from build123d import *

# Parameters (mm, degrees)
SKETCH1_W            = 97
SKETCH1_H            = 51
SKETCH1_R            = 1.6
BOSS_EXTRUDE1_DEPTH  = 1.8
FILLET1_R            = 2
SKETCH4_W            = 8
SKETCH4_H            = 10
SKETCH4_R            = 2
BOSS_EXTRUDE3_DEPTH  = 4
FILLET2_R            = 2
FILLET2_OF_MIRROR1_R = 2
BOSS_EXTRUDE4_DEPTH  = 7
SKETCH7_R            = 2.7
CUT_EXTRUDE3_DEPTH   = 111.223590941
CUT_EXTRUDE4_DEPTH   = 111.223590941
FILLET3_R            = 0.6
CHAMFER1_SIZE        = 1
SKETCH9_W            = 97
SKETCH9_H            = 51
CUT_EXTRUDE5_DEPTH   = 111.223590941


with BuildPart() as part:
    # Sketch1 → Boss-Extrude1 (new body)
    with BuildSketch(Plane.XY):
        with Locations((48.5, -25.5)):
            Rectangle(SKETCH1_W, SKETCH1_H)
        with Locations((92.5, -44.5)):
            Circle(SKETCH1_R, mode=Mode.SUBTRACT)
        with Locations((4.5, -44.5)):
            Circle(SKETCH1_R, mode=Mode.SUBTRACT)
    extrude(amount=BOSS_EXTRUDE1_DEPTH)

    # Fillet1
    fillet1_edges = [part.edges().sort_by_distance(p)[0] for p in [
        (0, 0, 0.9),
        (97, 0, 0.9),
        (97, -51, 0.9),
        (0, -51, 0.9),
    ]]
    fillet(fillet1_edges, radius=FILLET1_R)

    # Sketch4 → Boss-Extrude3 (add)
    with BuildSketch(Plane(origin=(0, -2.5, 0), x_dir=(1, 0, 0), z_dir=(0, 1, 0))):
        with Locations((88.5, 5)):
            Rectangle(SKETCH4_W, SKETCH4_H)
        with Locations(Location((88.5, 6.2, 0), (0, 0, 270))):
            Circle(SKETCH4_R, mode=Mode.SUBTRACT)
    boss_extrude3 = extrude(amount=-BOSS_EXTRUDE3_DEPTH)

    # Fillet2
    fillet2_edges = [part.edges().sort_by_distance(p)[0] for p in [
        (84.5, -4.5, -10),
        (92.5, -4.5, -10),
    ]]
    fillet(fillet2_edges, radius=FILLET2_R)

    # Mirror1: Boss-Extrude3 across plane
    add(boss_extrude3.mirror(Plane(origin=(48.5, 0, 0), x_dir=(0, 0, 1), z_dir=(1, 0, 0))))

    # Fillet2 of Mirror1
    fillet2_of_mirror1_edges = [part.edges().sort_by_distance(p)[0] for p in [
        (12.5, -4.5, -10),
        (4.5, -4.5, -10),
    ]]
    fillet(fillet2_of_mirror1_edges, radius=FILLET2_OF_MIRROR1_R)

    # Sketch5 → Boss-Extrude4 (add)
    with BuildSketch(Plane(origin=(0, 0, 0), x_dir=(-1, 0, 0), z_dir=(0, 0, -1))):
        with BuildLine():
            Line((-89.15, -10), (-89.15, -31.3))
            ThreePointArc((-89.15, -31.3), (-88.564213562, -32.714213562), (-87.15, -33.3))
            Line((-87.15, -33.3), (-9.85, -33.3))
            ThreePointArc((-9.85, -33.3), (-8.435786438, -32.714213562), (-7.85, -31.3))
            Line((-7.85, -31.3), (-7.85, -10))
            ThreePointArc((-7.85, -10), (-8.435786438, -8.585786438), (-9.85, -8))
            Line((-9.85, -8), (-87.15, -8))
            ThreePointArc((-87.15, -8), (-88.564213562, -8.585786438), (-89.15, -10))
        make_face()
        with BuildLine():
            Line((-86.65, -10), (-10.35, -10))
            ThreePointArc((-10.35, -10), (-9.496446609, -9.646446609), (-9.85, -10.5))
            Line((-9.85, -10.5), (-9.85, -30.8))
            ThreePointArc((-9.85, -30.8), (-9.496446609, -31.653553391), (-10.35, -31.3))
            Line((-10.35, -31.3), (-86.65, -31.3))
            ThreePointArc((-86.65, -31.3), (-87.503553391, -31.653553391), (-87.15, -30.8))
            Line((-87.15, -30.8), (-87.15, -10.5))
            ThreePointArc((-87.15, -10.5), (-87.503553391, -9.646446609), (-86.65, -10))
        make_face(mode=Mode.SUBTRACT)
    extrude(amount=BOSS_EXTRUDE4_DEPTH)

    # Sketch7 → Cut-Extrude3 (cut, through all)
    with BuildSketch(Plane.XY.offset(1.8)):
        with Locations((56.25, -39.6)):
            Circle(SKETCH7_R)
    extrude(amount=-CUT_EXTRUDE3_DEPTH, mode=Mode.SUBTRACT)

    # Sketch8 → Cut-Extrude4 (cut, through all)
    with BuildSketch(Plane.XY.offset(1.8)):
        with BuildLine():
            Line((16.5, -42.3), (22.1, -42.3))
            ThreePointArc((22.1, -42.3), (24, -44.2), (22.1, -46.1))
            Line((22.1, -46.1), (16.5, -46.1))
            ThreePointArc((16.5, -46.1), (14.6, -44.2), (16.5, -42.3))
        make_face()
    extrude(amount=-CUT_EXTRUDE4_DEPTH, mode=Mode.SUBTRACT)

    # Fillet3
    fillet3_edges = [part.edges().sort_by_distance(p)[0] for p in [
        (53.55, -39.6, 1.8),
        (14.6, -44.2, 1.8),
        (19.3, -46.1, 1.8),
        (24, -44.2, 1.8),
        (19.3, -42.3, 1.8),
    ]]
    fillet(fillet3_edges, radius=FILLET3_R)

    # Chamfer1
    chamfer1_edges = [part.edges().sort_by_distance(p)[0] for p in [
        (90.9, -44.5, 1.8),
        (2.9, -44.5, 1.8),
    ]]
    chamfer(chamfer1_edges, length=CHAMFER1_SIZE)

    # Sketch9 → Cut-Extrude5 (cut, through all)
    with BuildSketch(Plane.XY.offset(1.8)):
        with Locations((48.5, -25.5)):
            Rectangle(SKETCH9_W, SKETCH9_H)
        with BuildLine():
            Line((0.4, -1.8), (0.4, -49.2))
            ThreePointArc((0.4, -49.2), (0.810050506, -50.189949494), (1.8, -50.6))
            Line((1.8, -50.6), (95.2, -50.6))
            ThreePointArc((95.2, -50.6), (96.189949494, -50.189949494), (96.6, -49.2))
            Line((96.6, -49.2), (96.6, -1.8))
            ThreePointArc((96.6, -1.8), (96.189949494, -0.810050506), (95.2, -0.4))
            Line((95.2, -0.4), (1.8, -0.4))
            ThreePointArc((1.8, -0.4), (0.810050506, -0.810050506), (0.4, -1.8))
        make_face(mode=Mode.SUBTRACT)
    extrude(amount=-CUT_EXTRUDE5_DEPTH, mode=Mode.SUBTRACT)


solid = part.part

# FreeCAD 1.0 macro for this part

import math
import FreeCAD as App
import Part
import Sketcher

V = App.Vector


def edges_at(feature, points):
    """Names of the edges that pass closest to the given points."""
    edges = feature.Shape.Edges
    near = lambda p: min(range(len(edges)), key=lambda i: edges[i].distToShape(Part.Vertex(*p))[0])
    return sorted({f"Edge{near(p) + 1}" for p in points})


def add_polygon(sketch, points):
    """Adds a closed chain of lines whose ends are joined by coincident constraints."""
    first, n = sketch.GeometryCount, len(points)
    for a, b in zip(points, points[1:] + points[:1]):
        sketch.addGeometry(Part.LineSegment(App.Vector(*a, 0), App.Vector(*b, 0)), False)
    for i in range(n):
        sketch.addConstraint(Sketcher.Constraint("Coincident", first + i, 2, first + (i + 1) % n, 1))

doc = App.newDocument("Part")
params = doc.addObject("Spreadsheet::Sheet", "Params")
for row, (alias, value) in enumerate([
    ("sketch1_diameter", "3.2 mm"),
    ("sketch1_width", "97 mm"),
    ("sketch1_height", "51 mm"),
    ("pad1_length", "1.8 mm"),
    ("fillet_radius", "2 mm"),
    ("sketch2_diameter", "4 mm"),
    ("sketch2_width", "8 mm"),
    ("sketch2_height", "10 mm"),
    ("pad2_length", "4 mm"),
    ("fillet2_radius", "2 mm"),
    ("fillet3_radius", "2 mm"),
    ("sketch3_radius", "2 mm"),
    ("sketch3_radius2", "0.5 mm"),
    ("sketch3_width", "77.3 mm"),
    ("sketch3_height", "21.3 mm"),
    ("pad3_length", "7 mm"),
    ("sketch4_diameter", "5.4 mm"),
    ("sketch5_radius", "1.9 mm"),
    ("sketch5_width", "5.6 mm"),
    ("fillet4_radius", "0.6 mm"),
    ("chamfer_size", "1 mm"),
    ("sketch6_radius", "1.4 mm"),
    ("sketch6_width", "97 mm"),
    ("sketch6_height", "51 mm"),
    ("sketch6_width2", "93.4 mm"),
    ("sketch6_height2", "47.4 mm"),
], start=1):
    params.set(f"A{row}", alias)
    params.set(f"B{row}", "=" + value)
    params.setAlias(f"B{row}", alias)

body = doc.addObject("PartDesign::Body", "Body")

sketch1 = body.newObject("Sketcher::SketchObject", "Sketch")
sketch1.AttachmentSupport = (doc.getObject("XY_Plane"), [""])
sketch1.MapMode = "FlatFace"
add_polygon(sketch1, [(0, 0), (0, -51), (97, -51), (97, 0)])
sketch1.addGeometry(Part.Circle(V(4.5, -44.5, 0), V(0, 0, 1), 1.6), False)
sketch1.addGeometry(Part.Circle(V(92.5, -44.5, 0), V(0, 0, 1), 1.6), False)
sketch1.addConstraint(Sketcher.Constraint("Vertical", 0))
sketch1.addConstraint(Sketcher.Constraint("Horizontal", 1))
sketch1.addConstraint(Sketcher.Constraint("Vertical", 2))
sketch1.addConstraint(Sketcher.Constraint("Horizontal", 3))
sketch1.addConstraint(Sketcher.Constraint("Coincident", 3, 2, -1, 1))
sketch1.addConstraint(Sketcher.Constraint("Equal", 4, 5))
sketch1.addConstraint(Sketcher.Constraint("Horizontal", 4, 3, 5, 3))
sketch1.addConstraint(Sketcher.Constraint("Diameter", 4, 3.2))
sketch1.addConstraint(Sketcher.Constraint("DistanceX", 1, 1, 1, 2, 97.0))
sketch1.addConstraint(Sketcher.Constraint("DistanceY", 0, 2, 0, 1, 51.0))
sketch1.addConstraint(Sketcher.Constraint("DistanceX", 4, 3, 5, 3, 88.0))
sketch1.addConstraint(Sketcher.Constraint("DistanceX", -1, 1, 4, 3, 4.5))
sketch1.addConstraint(Sketcher.Constraint("DistanceY", 4, 3, -1, 1, 44.5))
sketch1.setExpression("Constraints[11]", "Params.sketch1_diameter")
sketch1.setExpression("Constraints[12]", "Params.sketch1_width")
sketch1.setExpression("Constraints[13]", "Params.sketch1_height")
pad1 = body.newObject("PartDesign::Pad", "Pad")
pad1.Profile = sketch1
pad1.setExpression("Length", "Params.pad1_length")
doc.recompute()

fillet = body.newObject("PartDesign::Fillet", "Fillet")
fillet.Base = (pad1, edges_at(pad1, [
    (0, 0, 0.9),
    (97, 0, 0.9),
    (97, -51, 0.9),
    (0, -51, 0.9),
]))
fillet.setExpression("Radius", "Params.fillet_radius")

sketch2 = body.newObject("Sketcher::SketchObject", "Sketch001")
sketch2.AttachmentSupport = (doc.getObject("XZ_Plane"), [""])
sketch2.MapMode = "FlatFace"
sketch2.AttachmentOffset = App.Placement(V(0, 0, 2.5), App.Rotation())
add_polygon(sketch2, [(84.5, -10), (84.5, 0), (92.5, 0), (92.5, -10)])
sketch2.addGeometry(Part.Circle(V(88.5, -6.2, 0), V(0, 0, 1), 2), False)
sketch2.addConstraint(Sketcher.Constraint("Vertical", 0))
sketch2.addConstraint(Sketcher.Constraint("Horizontal", 1))
sketch2.addConstraint(Sketcher.Constraint("Vertical", 2))
sketch2.addConstraint(Sketcher.Constraint("Horizontal", 3))
sketch2.addConstraint(Sketcher.Constraint("PointOnObject", 0, 2, -1))
sketch2.addConstraint(Sketcher.Constraint("Diameter", 4, 4.0))
sketch2.addConstraint(Sketcher.Constraint("DistanceX", 1, 1, 1, 2, 8.0))
sketch2.addConstraint(Sketcher.Constraint("DistanceY", 0, 1, 0, 2, 10.0))
sketch2.addConstraint(Sketcher.Constraint("DistanceX", 0, 2, 4, 3, 4.0))
sketch2.addConstraint(Sketcher.Constraint("DistanceX", -1, 1, 4, 3, 88.5))
sketch2.addConstraint(Sketcher.Constraint("DistanceY", 4, 3, -1, 1, 6.2))
sketch2.setExpression("Constraints[9]", "Params.sketch2_diameter")
sketch2.setExpression("Constraints[10]", "Params.sketch2_width")
sketch2.setExpression("Constraints[11]", "Params.sketch2_height")
pad2 = body.newObject("PartDesign::Pad", "Pad001")
pad2.Profile = sketch2
pad2.setExpression("Length", "Params.pad2_length")
doc.recompute()

fillet2 = body.newObject("PartDesign::Fillet", "Fillet001")
fillet2.Base = (pad2, edges_at(pad2, [(84.5, -4.5, -10), (92.5, -4.5, -10)]))
fillet2.setExpression("Radius", "Params.fillet2_radius")
doc.recompute()

datumplane = body.newObject("PartDesign::Plane", "DatumPlane")
datumplane.AttachmentSupport = (doc.getObject("YZ_Plane"), [""])
datumplane.MapMode = "FlatFace"
datumplane.AttachmentOffset = App.Placement(V(0, 0, 48.5), App.Rotation())
mirrored = body.newObject("PartDesign::Mirrored", "Mirrored")
mirrored.Originals = [pad2]
mirrored.MirrorPlane = (datumplane, [""])
body.Tip = mirrored
doc.recompute()

fillet3 = body.newObject("PartDesign::Fillet", "Fillet002")
fillet3.Base = (mirrored, edges_at(mirrored, [(12.5, -4.5, -10), (4.5, -4.5, -10)]))
fillet3.setExpression("Radius", "Params.fillet3_radius")

sketch3 = body.newObject("Sketcher::SketchObject", "Sketch002")
sketch3.AttachmentSupport = (doc.getObject("XY_Plane"), [""])
sketch3.MapMode = "FlatFace"
sketch3.addGeometry(Part.LineSegment(V(89.15, -10, 0), V(89.15, -31.3, 0)), False)
sketch3.addGeometry(Part.ArcOfCircle(Part.Circle(V(87.15, -31.3, 0), V(0, 0, 1), 2), math.radians(-90), math.radians(0)), False)
sketch3.addGeometry(Part.LineSegment(V(87.15, -33.3, 0), V(9.85, -33.3, 0)), False)
sketch3.addGeometry(Part.ArcOfCircle(Part.Circle(V(9.85, -31.3, 0), V(0, 0, 1), 2), math.radians(-180), math.radians(-90)), False)
sketch3.addGeometry(Part.LineSegment(V(7.85, -31.3, 0), V(7.85, -10, 0)), False)
sketch3.addGeometry(Part.ArcOfCircle(Part.Circle(V(9.85, -10, 0), V(0, 0, 1), 2), math.radians(90), math.radians(180)), False)
sketch3.addGeometry(Part.LineSegment(V(9.85, -8, 0), V(87.15, -8, 0)), False)
sketch3.addGeometry(Part.ArcOfCircle(Part.Circle(V(87.15, -10, 0), V(0, 0, 1), 2), math.radians(0), math.radians(90)), False)
sketch3.addGeometry(Part.ArcOfCircle(Part.Circle(V(87.15, -10, 0), V(0, 0, 1), 0.5), math.radians(-90), math.radians(180)), False)
sketch3.addGeometry(Part.LineSegment(V(86.65, -10, 0), V(10.35, -10, 0)), False)
sketch3.addGeometry(Part.ArcOfCircle(Part.Circle(V(9.85, -10, 0), V(0, 0, 1), 0.5), math.radians(0), math.radians(270)), False)
sketch3.addGeometry(Part.LineSegment(V(9.85, -10.5, 0), V(9.85, -30.8, 0)), False)
sketch3.addGeometry(Part.ArcOfCircle(Part.Circle(V(9.85, -31.3, 0), V(0, 0, 1), 0.5), math.radians(90), math.radians(360)), False)
sketch3.addGeometry(Part.LineSegment(V(10.35, -31.3, 0), V(86.65, -31.3, 0)), False)
sketch3.addGeometry(Part.ArcOfCircle(Part.Circle(V(87.15, -31.3, 0), V(0, 0, 1), 0.5), math.radians(180), math.radians(450)), False)
sketch3.addGeometry(Part.LineSegment(V(87.15, -30.8, 0), V(87.15, -10.5, 0)), False)
sketch3.addConstraint(Sketcher.Constraint("Tangent", 0, 2, 1, 2))
sketch3.addConstraint(Sketcher.Constraint("Tangent", 1, 1, 2, 1))
sketch3.addConstraint(Sketcher.Constraint("Tangent", 2, 2, 3, 2))
sketch3.addConstraint(Sketcher.Constraint("Tangent", 3, 1, 4, 1))
sketch3.addConstraint(Sketcher.Constraint("Tangent", 4, 2, 5, 2))
sketch3.addConstraint(Sketcher.Constraint("Tangent", 5, 1, 6, 1))
sketch3.addConstraint(Sketcher.Constraint("Tangent", 6, 2, 7, 2))
sketch3.addConstraint(Sketcher.Constraint("Tangent", 7, 1, 0, 1))
sketch3.addConstraint(Sketcher.Constraint("Coincident", 8, 2, 9, 1))
sketch3.addConstraint(Sketcher.Constraint("Coincident", 9, 2, 10, 1))
sketch3.addConstraint(Sketcher.Constraint("Coincident", 10, 2, 11, 1))
sketch3.addConstraint(Sketcher.Constraint("Coincident", 11, 2, 12, 1))
sketch3.addConstraint(Sketcher.Constraint("Coincident", 12, 2, 13, 1))
sketch3.addConstraint(Sketcher.Constraint("Coincident", 13, 2, 14, 1))
sketch3.addConstraint(Sketcher.Constraint("Coincident", 14, 2, 15, 1))
sketch3.addConstraint(Sketcher.Constraint("Coincident", 15, 2, 8, 1))
sketch3.addConstraint(Sketcher.Constraint("Vertical", 0))
sketch3.addConstraint(Sketcher.Constraint("Horizontal", 2))
sketch3.addConstraint(Sketcher.Constraint("Vertical", 4))
sketch3.addConstraint(Sketcher.Constraint("Horizontal", 6))
sketch3.addConstraint(Sketcher.Constraint("Horizontal", 9))
sketch3.addConstraint(Sketcher.Constraint("Vertical", 11))
sketch3.addConstraint(Sketcher.Constraint("Horizontal", 13))
sketch3.addConstraint(Sketcher.Constraint("Vertical", 15))
sketch3.addConstraint(Sketcher.Constraint("Coincident", 8, 3, 7, 3))
sketch3.addConstraint(Sketcher.Constraint("Coincident", 10, 3, 5, 3))
sketch3.addConstraint(Sketcher.Constraint("Coincident", 12, 3, 3, 3))
sketch3.addConstraint(Sketcher.Constraint("Coincident", 14, 3, 1, 3))
sketch3.addConstraint(Sketcher.Constraint("Equal", 1, 3))
sketch3.addConstraint(Sketcher.Constraint("Equal", 3, 5))
sketch3.addConstraint(Sketcher.Constraint("Equal", 5, 7))
sketch3.addConstraint(Sketcher.Constraint("Equal", 8, 10))
sketch3.addConstraint(Sketcher.Constraint("Equal", 10, 12))
sketch3.addConstraint(Sketcher.Constraint("Equal", 12, 14))
sketch3.addConstraint(Sketcher.Constraint("Horizontal", 7, 1, 8, 2))
sketch3.addConstraint(Sketcher.Constraint("Horizontal", 3, 1, 12, 2))
sketch3.addConstraint(Sketcher.Constraint("Vertical", 5, 1, 10, 2))
sketch3.addConstraint(Sketcher.Constraint("Vertical", 6, 2, 14, 2))
sketch3.addConstraint(Sketcher.Constraint("Radius", 1, 2.0))
sketch3.addConstraint(Sketcher.Constraint("Radius", 8, 0.5))
sketch3.addConstraint(Sketcher.Constraint("DistanceX", 2, 2, 2, 1, 77.3))
sketch3.addConstraint(Sketcher.Constraint("DistanceY", 0, 2, 0, 1, 21.3))
sketch3.addConstraint(Sketcher.Constraint("DistanceY", 5, 3, -1, 1, 10.0))
sketch3.addConstraint(Sketcher.Constraint("DistanceX", -1, 1, 1, 3, 87.15))
sketch3.setExpression("Constraints[38]", "Params.sketch3_radius")
sketch3.setExpression("Constraints[39]", "Params.sketch3_radius2")
sketch3.setExpression("Constraints[40]", "Params.sketch3_width")
sketch3.setExpression("Constraints[41]", "Params.sketch3_height")
pad3 = body.newObject("PartDesign::Pad", "Pad002")
pad3.Profile = sketch3
pad3.setExpression("Length", "Params.pad3_length")
pad3.Reversed = True

sketch4 = body.newObject("Sketcher::SketchObject", "Sketch003")
sketch4.AttachmentSupport = (doc.getObject("XY_Plane"), [""])
sketch4.MapMode = "FlatFace"
sketch4.AttachmentOffset = App.Placement(V(0, 0, 1.8), App.Rotation())
sketch4.addGeometry(Part.Circle(V(56.25, -39.6, 0), V(0, 0, 1), 2.7), False)
sketch4.addConstraint(Sketcher.Constraint("Diameter", 0, 5.4))
sketch4.addConstraint(Sketcher.Constraint("DistanceY", 0, 3, -1, 1, 39.6))
sketch4.addConstraint(Sketcher.Constraint("DistanceX", -1, 1, 0, 3, 56.25))
sketch4.setExpression("Constraints[0]", "Params.sketch4_diameter")
pocket1 = body.newObject("PartDesign::Pocket", "Pocket")
pocket1.Profile = sketch4
pocket1.Type = "ThroughAll"

sketch5 = body.newObject("Sketcher::SketchObject", "Sketch004")
sketch5.AttachmentSupport = (doc.getObject("XY_Plane"), [""])
sketch5.MapMode = "FlatFace"
sketch5.AttachmentOffset = App.Placement(V(0, 0, 1.8), App.Rotation())
sketch5.addGeometry(Part.LineSegment(V(22.1, -42.3, 0), V(16.5, -42.3, 0)), False)
sketch5.addGeometry(Part.ArcOfCircle(Part.Circle(V(16.5, -44.2, 0), V(0, 0, 1), 1.9), math.radians(90), math.radians(270)), False)
sketch5.addGeometry(Part.LineSegment(V(16.5, -46.1, 0), V(22.1, -46.1, 0)), False)
sketch5.addGeometry(Part.ArcOfCircle(Part.Circle(V(22.1, -44.2, 0), V(0, 0, 1), 1.9), math.radians(-90), math.radians(90)), False)
sketch5.addConstraint(Sketcher.Constraint("Tangent", 0, 2, 1, 1))
sketch5.addConstraint(Sketcher.Constraint("Tangent", 1, 2, 2, 1))
sketch5.addConstraint(Sketcher.Constraint("Tangent", 2, 2, 3, 1))
sketch5.addConstraint(Sketcher.Constraint("Tangent", 3, 2, 0, 1))
sketch5.addConstraint(Sketcher.Constraint("Horizontal", 0))
sketch5.addConstraint(Sketcher.Constraint("Horizontal", 2))
sketch5.addConstraint(Sketcher.Constraint("Radius", 1, 1.9))
sketch5.addConstraint(Sketcher.Constraint("DistanceX", 0, 2, 0, 1, 5.6))
sketch5.addConstraint(Sketcher.Constraint("DistanceX", -1, 1, 1, 3, 16.5))
sketch5.addConstraint(Sketcher.Constraint("DistanceY", 1, 3, -1, 1, 44.2))
sketch5.setExpression("Constraints[6]", "Params.sketch5_radius")
sketch5.setExpression("Constraints[7]", "Params.sketch5_width")
pocket2 = body.newObject("PartDesign::Pocket", "Pocket001")
pocket2.Profile = sketch5
pocket2.Type = "ThroughAll"
doc.recompute()

fillet4 = body.newObject("PartDesign::Fillet", "Fillet003")
fillet4.Base = (pocket2, edges_at(pocket2, [
    (53.55, -39.6, 1.8),
    (14.6, -44.2, 1.8),
    (19.3, -46.1, 1.8),
    (24, -44.2, 1.8),
    (19.3, -42.3, 1.8),
]))
fillet4.setExpression("Radius", "Params.fillet4_radius")
doc.recompute()

chamfer = body.newObject("PartDesign::Chamfer", "Chamfer")
chamfer.Base = (fillet4, edges_at(fillet4, [(90.9, -44.5, 1.8), (2.9, -44.5, 1.8)]))
chamfer.setExpression("Size", "Params.chamfer_size")

sketch6 = body.newObject("Sketcher::SketchObject", "Sketch005")
sketch6.AttachmentSupport = (doc.getObject("XY_Plane"), [""])
sketch6.MapMode = "FlatFace"
sketch6.AttachmentOffset = App.Placement(V(0, 0, 1.8), App.Rotation())
add_polygon(sketch6, [(0, 0), (0, -51), (97, -51), (97, 0)])
sketch6.addGeometry(Part.LineSegment(V(0.4, -49.2, 0), V(0.4, -1.8, 0)), False)
sketch6.addGeometry(Part.ArcOfCircle(Part.Circle(V(1.8, -1.8, 0), V(0, 0, 1), 1.4), math.radians(90), math.radians(180)), False)
sketch6.addGeometry(Part.LineSegment(V(1.8, -0.4, 0), V(95.2, -0.4, 0)), False)
sketch6.addGeometry(Part.ArcOfCircle(Part.Circle(V(95.2, -1.8, 0), V(0, 0, 1), 1.4), math.radians(0), math.radians(90)), False)
sketch6.addGeometry(Part.LineSegment(V(96.6, -1.8, 0), V(96.6, -49.2, 0)), False)
sketch6.addGeometry(Part.ArcOfCircle(Part.Circle(V(95.2, -49.2, 0), V(0, 0, 1), 1.4), math.radians(-90), math.radians(0)), False)
sketch6.addGeometry(Part.LineSegment(V(95.2, -50.6, 0), V(1.8, -50.6, 0)), False)
sketch6.addGeometry(Part.ArcOfCircle(Part.Circle(V(1.8, -49.2, 0), V(0, 0, 1), 1.4), math.radians(180), math.radians(270)), False)
sketch6.addConstraint(Sketcher.Constraint("Tangent", 4, 2, 5, 2))
sketch6.addConstraint(Sketcher.Constraint("Tangent", 5, 1, 6, 1))
sketch6.addConstraint(Sketcher.Constraint("Tangent", 6, 2, 7, 2))
sketch6.addConstraint(Sketcher.Constraint("Tangent", 7, 1, 8, 1))
sketch6.addConstraint(Sketcher.Constraint("Tangent", 8, 2, 9, 2))
sketch6.addConstraint(Sketcher.Constraint("Tangent", 9, 1, 10, 1))
sketch6.addConstraint(Sketcher.Constraint("Tangent", 10, 2, 11, 2))
sketch6.addConstraint(Sketcher.Constraint("Tangent", 11, 1, 4, 1))
sketch6.addConstraint(Sketcher.Constraint("Vertical", 0))
sketch6.addConstraint(Sketcher.Constraint("Horizontal", 1))
sketch6.addConstraint(Sketcher.Constraint("Vertical", 2))
sketch6.addConstraint(Sketcher.Constraint("Horizontal", 3))
sketch6.addConstraint(Sketcher.Constraint("Vertical", 4))
sketch6.addConstraint(Sketcher.Constraint("Horizontal", 6))
sketch6.addConstraint(Sketcher.Constraint("Vertical", 8))
sketch6.addConstraint(Sketcher.Constraint("Horizontal", 10))
sketch6.addConstraint(Sketcher.Constraint("Coincident", 3, 2, -1, 1))
sketch6.addConstraint(Sketcher.Constraint("Equal", 5, 7))
sketch6.addConstraint(Sketcher.Constraint("Equal", 7, 9))
sketch6.addConstraint(Sketcher.Constraint("Equal", 9, 11))
sketch6.addConstraint(Sketcher.Constraint("Radius", 5, 1.4))
sketch6.addConstraint(Sketcher.Constraint("DistanceX", 1, 1, 1, 2, 97.0))
sketch6.addConstraint(Sketcher.Constraint("DistanceY", 0, 2, 0, 1, 51.0))
sketch6.addConstraint(Sketcher.Constraint("DistanceX", 6, 1, 6, 2, 93.4))
sketch6.addConstraint(Sketcher.Constraint("DistanceY", 4, 1, 4, 2, 47.4))
sketch6.addConstraint(Sketcher.Constraint("DistanceX", -1, 1, 5, 3, 1.8))
sketch6.addConstraint(Sketcher.Constraint("DistanceY", 5, 3, -1, 1, 1.8))
sketch6.setExpression("Constraints[24]", "Params.sketch6_radius")
sketch6.setExpression("Constraints[25]", "Params.sketch6_width")
sketch6.setExpression("Constraints[26]", "Params.sketch6_height")
sketch6.setExpression("Constraints[27]", "Params.sketch6_width2")
sketch6.setExpression("Constraints[28]", "Params.sketch6_height2")
pocket3 = body.newObject("PartDesign::Pocket", "Pocket002")
pocket3.Profile = sketch6
pocket3.Type = "ThroughAll"

doc.recompute()
